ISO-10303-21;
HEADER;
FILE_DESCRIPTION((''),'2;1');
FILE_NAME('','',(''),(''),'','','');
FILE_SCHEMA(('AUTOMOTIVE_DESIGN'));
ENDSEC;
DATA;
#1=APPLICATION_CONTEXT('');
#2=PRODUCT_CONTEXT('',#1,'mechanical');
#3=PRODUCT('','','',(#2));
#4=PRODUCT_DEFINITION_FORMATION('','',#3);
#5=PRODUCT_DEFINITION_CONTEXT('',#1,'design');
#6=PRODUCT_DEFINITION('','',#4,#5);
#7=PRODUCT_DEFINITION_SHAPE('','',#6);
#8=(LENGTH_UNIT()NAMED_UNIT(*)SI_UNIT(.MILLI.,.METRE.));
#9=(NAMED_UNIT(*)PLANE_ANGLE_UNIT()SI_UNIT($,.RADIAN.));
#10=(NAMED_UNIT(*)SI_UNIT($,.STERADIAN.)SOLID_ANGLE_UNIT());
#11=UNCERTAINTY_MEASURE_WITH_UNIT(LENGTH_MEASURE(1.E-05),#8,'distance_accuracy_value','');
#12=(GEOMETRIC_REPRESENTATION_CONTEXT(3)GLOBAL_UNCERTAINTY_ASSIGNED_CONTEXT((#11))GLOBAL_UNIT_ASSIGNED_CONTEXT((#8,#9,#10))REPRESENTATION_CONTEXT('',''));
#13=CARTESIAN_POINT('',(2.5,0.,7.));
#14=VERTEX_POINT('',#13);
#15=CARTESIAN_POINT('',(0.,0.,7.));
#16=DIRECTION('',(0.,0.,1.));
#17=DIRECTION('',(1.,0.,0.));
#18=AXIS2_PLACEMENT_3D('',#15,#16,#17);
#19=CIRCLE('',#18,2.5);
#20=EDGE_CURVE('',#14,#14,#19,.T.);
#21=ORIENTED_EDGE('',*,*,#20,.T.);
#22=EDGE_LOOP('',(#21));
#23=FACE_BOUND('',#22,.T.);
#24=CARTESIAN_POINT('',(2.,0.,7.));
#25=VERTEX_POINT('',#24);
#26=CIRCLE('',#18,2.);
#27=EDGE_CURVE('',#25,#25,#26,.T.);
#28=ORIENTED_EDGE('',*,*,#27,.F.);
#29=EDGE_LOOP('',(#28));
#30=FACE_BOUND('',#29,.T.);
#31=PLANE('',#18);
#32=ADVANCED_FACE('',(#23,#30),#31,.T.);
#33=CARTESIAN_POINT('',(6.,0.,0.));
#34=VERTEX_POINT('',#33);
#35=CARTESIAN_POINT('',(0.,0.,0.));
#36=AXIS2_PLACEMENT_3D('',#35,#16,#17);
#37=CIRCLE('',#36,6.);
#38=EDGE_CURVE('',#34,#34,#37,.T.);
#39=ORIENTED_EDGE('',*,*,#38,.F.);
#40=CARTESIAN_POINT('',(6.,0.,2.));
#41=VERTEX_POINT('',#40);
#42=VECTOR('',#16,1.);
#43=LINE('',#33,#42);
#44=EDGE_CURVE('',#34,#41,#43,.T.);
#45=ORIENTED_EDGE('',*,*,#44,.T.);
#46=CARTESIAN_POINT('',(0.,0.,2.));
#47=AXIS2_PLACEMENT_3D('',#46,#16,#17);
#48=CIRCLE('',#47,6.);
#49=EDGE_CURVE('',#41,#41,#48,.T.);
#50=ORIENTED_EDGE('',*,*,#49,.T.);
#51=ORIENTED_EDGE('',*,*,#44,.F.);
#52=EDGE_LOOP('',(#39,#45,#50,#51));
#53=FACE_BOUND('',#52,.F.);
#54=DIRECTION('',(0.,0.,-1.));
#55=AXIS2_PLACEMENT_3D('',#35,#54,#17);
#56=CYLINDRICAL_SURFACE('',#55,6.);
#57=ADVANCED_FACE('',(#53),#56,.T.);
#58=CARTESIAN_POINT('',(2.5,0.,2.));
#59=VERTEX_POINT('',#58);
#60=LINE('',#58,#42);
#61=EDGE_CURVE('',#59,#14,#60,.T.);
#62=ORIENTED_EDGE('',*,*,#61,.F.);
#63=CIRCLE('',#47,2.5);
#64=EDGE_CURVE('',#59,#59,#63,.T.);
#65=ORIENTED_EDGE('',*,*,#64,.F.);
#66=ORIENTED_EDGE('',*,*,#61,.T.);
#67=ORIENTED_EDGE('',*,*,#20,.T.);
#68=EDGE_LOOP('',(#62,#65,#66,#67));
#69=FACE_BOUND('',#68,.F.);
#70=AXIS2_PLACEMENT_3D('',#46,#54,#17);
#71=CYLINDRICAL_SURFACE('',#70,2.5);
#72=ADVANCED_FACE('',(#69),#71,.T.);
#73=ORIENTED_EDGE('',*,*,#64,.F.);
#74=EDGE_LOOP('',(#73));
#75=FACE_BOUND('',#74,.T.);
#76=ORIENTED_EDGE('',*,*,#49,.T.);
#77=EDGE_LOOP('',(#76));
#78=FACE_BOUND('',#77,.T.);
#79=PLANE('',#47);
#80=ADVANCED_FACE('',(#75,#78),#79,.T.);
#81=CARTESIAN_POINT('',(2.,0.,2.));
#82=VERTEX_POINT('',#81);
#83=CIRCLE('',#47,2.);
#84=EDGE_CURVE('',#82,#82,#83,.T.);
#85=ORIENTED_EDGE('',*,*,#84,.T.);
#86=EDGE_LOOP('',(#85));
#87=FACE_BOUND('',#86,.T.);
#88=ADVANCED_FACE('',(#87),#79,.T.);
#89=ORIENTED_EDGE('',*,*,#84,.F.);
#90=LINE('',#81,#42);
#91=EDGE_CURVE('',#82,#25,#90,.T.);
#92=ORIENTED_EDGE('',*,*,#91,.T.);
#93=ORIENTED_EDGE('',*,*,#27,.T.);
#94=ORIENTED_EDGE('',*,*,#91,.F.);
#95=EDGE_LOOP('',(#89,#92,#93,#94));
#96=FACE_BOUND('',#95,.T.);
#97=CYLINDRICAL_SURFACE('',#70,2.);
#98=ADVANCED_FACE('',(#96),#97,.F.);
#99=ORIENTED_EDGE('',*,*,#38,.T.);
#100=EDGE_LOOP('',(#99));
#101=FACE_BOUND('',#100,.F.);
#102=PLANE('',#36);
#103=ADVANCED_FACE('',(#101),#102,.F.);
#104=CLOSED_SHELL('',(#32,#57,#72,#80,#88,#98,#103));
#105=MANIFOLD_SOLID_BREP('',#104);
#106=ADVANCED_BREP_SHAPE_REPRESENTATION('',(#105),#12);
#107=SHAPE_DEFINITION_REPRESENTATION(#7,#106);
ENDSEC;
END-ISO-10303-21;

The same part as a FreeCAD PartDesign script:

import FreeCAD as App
import Part
import Sketcher
Q = App.Units.Quantity

doc = App.newDocument("Part")
params = doc.addObject("Spreadsheet::Sheet", "Params")
for row, (alias, value) in enumerate([
    ("sketch1_diameter", "12 mm"),
    ("pad1_length", "2 mm"),
    ("sketch2_diameter", "5 mm"),
    ("sketch2_diameter2", "4 mm"),
    ("pad2_length", "5 mm"),
], start=1):
    params.set(f"A{row}", alias)
    params.set(f"B{row}", "=" + value)
    params.setAlias(f"B{row}", alias)

body = doc.addObject("PartDesign::Body", "Body")

# Sketch on XY plane
sketch1 = body.newObject("Sketcher::SketchObject", "Sketch")
sketch1.AttachmentSupport = (doc.getObject("XY_Plane"), [""])
sketch1.MapMode = "FlatFace"
sketch1.addGeometry(Part.Circle(App.Vector(0, 0, 0), App.Vector(0, 0, 1), 6), False)
sketch1.addConstraint([
    Sketcher.Constraint("Coincident", 0, 3, -1, 1),
    Sketcher.Constraint("Diameter", 0, Q("12 mm")),
])
sketch1.setExpression("Constraints[1]", "Params.sketch1_diameter")
pad1 = body.newObject("PartDesign::Pad", "Pad")
pad1.Profile = sketch1
pad1.setExpression("Length", "Params.pad1_length")

# Sketch on XY plane
sketch2 = body.newObject("Sketcher::SketchObject", "Sketch001")
sketch2.AttachmentSupport = (doc.getObject("XY_Plane"), [""])
sketch2.MapMode = "FlatFace"
sketch2.AttachmentOffset = App.Placement(App.Vector(0, 0, 2), App.Rotation())
sketch2.addGeometry([
    Part.Circle(App.Vector(0, 0, 0), App.Vector(0, 0, 1), 2.5),
    Part.Circle(App.Vector(0, 0, 0), App.Vector(0, 0, 1), 2),
], False)
sketch2.addConstraint([
    Sketcher.Constraint("Coincident", 0, 3, -1, 1),
    Sketcher.Constraint("Coincident", 1, 3, -1, 1),
    Sketcher.Constraint("Diameter", 0, Q("5 mm")),
    Sketcher.Constraint("Diameter", 1, Q("4 mm")),
])
sketch2.setExpression("Constraints[2]", "Params.sketch2_diameter")
sketch2.setExpression("Constraints[3]", "Params.sketch2_diameter2")
pad2 = body.newObject("PartDesign::Pad", "Pad001")
pad2.Profile = sketch2
pad2.setExpression("Length", "Params.pad2_length")

doc.recompute()
